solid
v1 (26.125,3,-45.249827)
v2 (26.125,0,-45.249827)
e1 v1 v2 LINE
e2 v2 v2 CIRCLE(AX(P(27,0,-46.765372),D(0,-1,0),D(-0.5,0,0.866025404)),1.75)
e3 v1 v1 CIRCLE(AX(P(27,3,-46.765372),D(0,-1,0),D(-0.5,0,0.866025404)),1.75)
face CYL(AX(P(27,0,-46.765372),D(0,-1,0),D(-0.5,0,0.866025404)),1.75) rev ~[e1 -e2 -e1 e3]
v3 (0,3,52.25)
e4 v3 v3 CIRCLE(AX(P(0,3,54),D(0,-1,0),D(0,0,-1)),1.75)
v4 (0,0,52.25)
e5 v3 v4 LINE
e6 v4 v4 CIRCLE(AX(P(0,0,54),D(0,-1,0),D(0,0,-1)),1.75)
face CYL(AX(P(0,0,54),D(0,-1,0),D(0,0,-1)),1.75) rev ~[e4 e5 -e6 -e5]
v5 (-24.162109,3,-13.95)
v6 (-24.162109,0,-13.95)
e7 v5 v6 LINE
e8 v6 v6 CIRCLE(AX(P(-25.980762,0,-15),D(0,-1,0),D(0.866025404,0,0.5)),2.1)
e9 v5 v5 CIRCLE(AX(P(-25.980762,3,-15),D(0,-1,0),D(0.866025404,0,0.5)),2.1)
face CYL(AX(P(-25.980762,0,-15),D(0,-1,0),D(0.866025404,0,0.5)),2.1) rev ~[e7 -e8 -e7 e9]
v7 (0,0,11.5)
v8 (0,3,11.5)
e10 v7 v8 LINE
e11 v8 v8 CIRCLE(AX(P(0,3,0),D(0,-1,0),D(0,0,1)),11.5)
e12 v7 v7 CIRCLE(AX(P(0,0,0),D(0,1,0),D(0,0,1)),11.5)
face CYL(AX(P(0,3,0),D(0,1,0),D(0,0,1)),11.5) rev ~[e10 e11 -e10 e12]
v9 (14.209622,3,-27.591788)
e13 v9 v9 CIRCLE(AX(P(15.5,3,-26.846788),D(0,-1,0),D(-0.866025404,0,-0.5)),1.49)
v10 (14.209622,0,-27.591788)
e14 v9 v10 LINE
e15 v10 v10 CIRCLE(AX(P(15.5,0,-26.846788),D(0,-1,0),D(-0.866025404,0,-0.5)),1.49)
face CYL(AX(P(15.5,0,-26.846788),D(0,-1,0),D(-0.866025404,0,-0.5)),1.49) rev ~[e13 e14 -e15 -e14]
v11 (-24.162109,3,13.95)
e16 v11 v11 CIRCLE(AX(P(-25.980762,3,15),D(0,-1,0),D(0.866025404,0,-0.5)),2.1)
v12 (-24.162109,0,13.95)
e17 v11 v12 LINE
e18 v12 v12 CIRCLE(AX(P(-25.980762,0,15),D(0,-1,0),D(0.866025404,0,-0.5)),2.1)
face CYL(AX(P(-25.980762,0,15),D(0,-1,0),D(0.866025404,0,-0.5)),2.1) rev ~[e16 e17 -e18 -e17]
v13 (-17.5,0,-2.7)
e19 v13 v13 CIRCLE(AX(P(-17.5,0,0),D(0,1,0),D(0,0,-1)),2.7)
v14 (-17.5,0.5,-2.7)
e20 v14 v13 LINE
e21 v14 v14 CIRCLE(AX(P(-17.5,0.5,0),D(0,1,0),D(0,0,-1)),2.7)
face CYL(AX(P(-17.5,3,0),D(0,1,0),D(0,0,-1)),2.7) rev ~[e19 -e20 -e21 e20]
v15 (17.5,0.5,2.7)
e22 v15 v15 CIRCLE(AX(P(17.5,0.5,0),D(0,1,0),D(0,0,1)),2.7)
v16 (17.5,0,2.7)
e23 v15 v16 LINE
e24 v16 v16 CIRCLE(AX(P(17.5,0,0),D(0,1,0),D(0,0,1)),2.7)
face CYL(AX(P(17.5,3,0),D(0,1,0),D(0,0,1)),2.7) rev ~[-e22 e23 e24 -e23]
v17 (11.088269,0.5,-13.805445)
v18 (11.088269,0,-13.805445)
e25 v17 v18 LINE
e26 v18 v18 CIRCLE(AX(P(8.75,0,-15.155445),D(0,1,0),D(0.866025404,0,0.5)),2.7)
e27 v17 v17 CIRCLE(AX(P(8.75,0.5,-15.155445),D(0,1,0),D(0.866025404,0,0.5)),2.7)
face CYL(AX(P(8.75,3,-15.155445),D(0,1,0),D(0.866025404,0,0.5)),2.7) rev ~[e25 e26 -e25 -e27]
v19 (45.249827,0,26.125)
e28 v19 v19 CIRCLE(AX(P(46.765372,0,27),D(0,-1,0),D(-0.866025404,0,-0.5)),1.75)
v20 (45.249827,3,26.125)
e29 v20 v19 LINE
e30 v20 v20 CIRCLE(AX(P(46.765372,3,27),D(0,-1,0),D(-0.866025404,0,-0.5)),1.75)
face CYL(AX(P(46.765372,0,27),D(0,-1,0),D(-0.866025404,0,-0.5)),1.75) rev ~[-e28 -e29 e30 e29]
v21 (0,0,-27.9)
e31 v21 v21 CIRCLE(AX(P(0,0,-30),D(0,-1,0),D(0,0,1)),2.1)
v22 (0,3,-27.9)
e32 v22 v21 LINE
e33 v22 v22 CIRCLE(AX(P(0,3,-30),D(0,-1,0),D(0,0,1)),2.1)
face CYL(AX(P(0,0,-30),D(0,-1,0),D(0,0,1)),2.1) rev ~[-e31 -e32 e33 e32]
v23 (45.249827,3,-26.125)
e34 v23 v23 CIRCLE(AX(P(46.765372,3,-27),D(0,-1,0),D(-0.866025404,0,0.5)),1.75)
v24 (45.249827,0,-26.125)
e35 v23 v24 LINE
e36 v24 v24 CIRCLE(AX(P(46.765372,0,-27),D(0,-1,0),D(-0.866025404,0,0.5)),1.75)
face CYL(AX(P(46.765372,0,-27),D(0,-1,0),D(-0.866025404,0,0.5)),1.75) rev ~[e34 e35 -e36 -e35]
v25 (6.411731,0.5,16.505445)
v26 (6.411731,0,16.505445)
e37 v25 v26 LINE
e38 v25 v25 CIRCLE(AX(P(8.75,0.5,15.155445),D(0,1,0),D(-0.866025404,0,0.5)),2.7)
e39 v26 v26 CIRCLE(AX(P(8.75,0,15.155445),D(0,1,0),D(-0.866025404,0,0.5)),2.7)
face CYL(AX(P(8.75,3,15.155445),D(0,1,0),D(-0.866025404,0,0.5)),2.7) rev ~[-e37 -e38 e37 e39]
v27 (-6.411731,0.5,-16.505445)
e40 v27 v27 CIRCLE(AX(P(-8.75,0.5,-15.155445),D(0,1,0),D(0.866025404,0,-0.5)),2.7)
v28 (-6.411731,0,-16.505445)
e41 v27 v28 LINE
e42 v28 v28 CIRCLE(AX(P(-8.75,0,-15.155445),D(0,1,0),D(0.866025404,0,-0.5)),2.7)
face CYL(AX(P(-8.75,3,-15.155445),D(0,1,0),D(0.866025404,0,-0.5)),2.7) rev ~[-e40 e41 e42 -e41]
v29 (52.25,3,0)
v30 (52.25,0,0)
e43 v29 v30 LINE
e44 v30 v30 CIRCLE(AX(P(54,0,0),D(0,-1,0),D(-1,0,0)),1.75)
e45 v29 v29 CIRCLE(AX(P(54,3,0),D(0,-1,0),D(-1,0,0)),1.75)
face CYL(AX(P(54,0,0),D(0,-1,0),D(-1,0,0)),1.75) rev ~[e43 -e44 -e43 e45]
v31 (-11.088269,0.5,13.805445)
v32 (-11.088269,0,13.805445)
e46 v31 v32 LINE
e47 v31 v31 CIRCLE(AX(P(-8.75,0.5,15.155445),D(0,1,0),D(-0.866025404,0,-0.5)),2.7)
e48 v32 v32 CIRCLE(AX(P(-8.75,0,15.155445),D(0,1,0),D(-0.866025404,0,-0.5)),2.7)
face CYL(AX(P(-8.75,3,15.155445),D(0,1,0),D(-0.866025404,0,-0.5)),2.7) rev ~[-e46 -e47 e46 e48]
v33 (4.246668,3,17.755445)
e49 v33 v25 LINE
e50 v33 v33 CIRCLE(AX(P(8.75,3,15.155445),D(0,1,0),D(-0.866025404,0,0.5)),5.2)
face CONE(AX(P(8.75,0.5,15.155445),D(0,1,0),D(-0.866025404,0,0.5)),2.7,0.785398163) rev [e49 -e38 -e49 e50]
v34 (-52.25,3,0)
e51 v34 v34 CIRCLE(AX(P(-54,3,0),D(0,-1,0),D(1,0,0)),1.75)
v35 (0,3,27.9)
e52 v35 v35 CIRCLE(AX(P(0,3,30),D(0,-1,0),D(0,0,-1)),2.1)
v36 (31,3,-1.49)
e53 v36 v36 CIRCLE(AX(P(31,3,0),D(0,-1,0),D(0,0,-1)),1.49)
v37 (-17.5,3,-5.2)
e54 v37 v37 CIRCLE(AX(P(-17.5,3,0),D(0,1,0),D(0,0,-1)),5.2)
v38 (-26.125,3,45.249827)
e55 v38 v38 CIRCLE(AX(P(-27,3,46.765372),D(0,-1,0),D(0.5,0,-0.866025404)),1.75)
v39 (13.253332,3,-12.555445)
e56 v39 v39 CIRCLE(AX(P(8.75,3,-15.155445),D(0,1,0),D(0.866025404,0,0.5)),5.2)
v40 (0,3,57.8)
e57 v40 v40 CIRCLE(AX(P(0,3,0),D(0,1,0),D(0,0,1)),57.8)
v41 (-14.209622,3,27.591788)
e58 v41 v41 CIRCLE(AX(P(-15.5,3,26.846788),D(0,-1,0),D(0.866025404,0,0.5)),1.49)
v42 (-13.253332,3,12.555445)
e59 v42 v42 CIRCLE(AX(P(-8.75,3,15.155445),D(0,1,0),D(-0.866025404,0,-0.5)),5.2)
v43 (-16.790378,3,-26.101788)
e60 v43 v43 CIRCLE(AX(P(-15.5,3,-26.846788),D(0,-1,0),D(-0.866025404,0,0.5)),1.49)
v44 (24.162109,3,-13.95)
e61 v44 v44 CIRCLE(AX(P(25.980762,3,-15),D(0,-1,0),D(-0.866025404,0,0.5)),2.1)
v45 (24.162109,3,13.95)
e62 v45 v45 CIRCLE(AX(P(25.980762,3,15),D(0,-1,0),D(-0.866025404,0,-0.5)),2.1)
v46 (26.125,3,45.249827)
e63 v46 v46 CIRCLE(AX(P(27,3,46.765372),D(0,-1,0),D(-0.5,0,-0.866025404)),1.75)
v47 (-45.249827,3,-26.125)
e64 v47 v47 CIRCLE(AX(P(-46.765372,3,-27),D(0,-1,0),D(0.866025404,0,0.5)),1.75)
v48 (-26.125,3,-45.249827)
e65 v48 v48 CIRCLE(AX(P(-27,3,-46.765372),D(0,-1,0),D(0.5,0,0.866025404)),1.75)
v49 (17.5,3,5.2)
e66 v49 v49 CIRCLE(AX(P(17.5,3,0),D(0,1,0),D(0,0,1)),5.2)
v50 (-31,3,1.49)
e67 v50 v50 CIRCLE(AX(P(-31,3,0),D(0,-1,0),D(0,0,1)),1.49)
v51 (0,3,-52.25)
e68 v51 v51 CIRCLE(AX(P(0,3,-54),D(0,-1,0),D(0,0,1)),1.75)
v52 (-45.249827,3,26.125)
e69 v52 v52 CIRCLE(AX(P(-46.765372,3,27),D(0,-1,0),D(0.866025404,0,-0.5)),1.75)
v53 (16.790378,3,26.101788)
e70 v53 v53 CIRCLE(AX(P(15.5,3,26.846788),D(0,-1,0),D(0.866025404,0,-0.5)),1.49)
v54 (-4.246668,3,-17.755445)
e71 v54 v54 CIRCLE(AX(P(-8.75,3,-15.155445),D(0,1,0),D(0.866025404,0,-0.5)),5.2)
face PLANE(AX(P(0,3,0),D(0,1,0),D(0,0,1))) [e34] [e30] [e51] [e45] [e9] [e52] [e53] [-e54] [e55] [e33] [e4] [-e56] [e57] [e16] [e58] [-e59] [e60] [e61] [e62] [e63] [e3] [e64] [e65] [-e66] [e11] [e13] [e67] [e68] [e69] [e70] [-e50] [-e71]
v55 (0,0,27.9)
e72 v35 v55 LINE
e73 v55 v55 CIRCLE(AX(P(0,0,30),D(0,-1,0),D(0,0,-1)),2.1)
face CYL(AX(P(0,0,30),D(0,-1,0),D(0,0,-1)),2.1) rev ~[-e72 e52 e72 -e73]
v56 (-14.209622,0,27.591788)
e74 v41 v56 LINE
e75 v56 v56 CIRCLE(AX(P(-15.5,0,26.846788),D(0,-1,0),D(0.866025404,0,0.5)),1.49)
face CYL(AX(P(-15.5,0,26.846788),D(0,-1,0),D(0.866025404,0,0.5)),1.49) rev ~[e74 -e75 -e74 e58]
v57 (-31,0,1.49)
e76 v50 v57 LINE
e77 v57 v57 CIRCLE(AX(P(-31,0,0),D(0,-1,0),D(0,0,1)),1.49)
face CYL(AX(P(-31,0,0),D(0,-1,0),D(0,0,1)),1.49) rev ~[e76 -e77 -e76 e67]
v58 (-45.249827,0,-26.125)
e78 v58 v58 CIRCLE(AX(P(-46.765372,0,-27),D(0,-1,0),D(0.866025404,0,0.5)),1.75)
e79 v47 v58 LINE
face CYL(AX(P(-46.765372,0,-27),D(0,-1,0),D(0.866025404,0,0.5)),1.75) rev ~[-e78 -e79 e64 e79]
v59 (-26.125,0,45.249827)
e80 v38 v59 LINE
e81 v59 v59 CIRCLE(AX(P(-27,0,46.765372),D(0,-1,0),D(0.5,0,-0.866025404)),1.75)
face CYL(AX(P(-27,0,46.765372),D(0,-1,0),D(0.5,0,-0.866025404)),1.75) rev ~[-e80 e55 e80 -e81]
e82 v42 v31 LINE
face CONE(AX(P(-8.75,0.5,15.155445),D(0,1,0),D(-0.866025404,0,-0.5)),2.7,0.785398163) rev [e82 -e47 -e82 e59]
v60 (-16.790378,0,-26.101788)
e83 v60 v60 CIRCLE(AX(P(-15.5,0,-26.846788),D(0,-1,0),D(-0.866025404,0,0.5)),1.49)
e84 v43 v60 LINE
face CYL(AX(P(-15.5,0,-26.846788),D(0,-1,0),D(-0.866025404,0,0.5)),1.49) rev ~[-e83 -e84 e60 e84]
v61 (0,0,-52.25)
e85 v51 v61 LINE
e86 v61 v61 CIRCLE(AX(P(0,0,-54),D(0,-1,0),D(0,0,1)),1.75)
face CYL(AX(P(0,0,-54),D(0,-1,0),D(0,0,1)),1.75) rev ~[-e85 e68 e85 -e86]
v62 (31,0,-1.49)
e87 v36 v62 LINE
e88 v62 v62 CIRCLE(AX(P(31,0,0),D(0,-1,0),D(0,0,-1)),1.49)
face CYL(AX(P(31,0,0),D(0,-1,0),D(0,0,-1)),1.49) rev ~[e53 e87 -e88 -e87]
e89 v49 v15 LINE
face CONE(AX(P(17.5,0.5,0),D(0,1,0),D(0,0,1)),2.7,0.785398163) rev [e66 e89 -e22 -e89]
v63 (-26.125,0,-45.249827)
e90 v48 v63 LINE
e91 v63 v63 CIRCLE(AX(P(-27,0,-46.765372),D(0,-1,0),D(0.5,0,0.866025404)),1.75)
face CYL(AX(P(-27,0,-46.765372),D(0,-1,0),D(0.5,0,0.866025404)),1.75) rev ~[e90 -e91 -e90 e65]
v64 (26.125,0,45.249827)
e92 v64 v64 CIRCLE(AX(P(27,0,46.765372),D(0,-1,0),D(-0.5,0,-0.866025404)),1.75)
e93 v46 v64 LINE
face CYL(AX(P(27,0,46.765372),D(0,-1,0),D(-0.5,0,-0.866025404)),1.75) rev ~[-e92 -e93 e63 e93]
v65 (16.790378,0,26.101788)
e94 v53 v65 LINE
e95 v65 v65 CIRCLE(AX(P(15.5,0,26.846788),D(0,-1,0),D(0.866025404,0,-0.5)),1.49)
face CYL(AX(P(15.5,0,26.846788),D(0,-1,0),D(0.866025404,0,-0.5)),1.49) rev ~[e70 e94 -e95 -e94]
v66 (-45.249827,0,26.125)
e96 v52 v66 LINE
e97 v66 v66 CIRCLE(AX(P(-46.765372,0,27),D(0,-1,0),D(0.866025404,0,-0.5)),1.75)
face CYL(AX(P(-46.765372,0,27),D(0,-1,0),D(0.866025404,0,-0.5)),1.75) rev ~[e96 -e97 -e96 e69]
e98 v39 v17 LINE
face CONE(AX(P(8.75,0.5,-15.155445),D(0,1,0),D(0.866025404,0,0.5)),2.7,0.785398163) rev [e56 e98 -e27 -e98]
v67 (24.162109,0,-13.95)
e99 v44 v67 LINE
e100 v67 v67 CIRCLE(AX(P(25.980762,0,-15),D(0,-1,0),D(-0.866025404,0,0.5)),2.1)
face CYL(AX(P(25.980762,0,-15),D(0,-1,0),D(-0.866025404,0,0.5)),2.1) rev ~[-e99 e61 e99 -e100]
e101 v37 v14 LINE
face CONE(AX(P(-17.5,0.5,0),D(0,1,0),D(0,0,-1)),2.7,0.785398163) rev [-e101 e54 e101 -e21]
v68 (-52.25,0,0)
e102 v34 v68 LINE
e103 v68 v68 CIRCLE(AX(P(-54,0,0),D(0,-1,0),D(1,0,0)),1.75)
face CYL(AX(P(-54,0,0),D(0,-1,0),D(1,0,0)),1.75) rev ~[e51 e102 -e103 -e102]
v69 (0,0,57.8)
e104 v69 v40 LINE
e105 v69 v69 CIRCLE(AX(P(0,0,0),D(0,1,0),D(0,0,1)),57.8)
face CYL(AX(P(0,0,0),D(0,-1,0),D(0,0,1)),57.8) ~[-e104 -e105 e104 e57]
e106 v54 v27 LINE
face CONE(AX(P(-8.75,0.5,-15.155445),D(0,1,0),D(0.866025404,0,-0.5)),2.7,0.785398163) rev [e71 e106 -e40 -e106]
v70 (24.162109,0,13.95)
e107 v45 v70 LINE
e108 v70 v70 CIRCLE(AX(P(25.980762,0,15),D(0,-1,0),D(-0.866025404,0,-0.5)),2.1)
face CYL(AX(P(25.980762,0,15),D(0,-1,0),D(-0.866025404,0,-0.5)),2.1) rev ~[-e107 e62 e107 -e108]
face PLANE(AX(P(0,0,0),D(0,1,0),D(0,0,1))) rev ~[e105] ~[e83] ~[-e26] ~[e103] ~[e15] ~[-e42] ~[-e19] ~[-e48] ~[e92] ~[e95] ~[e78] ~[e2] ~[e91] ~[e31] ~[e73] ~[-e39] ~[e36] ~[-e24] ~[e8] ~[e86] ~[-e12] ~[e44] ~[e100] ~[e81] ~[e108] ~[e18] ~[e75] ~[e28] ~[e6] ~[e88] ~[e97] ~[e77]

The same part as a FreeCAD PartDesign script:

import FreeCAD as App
import Part
import Sketcher

V = App.Vector


def edges_at(feature, points):
    """Names of the edges that pass closest to the given points."""
    edges = feature.Shape.Edges
    near = lambda p: min(range(len(edges)), key=lambda i: edges[i].distToShape(Part.Vertex(*p))[0])
    return sorted({f"Edge{near(p) + 1}" for p in points})

doc = App.newDocument("Part")
body = doc.addObject("PartDesign::Body", "Body")

sketch1 = body.newObject("Sketcher::SketchObject", "Sketch")
sketch1.AttachmentSupport = (doc.getObject("XZ_Plane"), [""])
sketch1.MapMode = "FlatFace"
sketch1.addGeometry(Part.Circle(V(0, 0, 0), V(0, 0, 1), 58), False)
sketch1.addConstraint([
    Sketcher.Constraint("Coincident", 0, 3, -1, 1),
    Sketcher.Constraint("Diameter", 0, 115.6),
])
pad1 = body.newObject("PartDesign::Pad", "Pad")
pad1.Profile = sketch1
pad1.Length = 3
pad1.Reversed = True

sketch2 = body.newObject("Sketcher::SketchObject", "Sketch001")
sketch2.AttachmentSupport = (doc.getObject("XZ_Plane"), [""])
sketch2.MapMode = "FlatFace"
sketch2.addGeometry(Part.Circle(V(0, 54, 0), V(0, 0, 1), 1.8), False)
sketch2.addConstraint([
    Sketcher.Constraint("PointOnObject", 0, 3, -2),
    Sketcher.Constraint("Diameter", 0, 3.5),
    Sketcher.Constraint("DistanceY", -1, 1, 0, 3, 54.0),
])
pocket1 = body.newObject("PartDesign::Pocket", "Pocket")
pocket1.Profile = sketch2
pocket1.Length = 165.593154
pocket1.Midplane = True
doc.recompute()

polarpattern = body.newObject("PartDesign::PolarPattern", "PolarPattern")
polarpattern.Originals = [pocket1]
polarpattern.Axis = (doc.getObject("Y_Axis"), [""])
polarpattern.Angle = 360
polarpattern.Occurrences = 12
body.Tip = polarpattern

sketch3 = body.newObject("Sketcher::SketchObject", "Sketch002")
sketch3.AttachmentSupport = (doc.getObject("XZ_Plane"), [""])
sketch3.MapMode = "FlatFace"
sketch3.addGeometry(Part.Circle(V(0, 30, 0), V(0, 0, 1), 2.1), False)
sketch3.addConstraint([
    Sketcher.Constraint("PointOnObject", 0, 3, -2),
    Sketcher.Constraint("Diameter", 0, 4.2),
    Sketcher.Constraint("DistanceY", -1, 1, 0, 3, 30.0),
])
pocket2 = body.newObject("PartDesign::Pocket", "Pocket001")
pocket2.Profile = sketch3
pocket2.Length = 165.593154
pocket2.Midplane = True
doc.recompute()

polarpattern2 = body.newObject("PartDesign::PolarPattern", "PolarPattern001")
polarpattern2.Originals = [pocket2]
polarpattern2.Axis = (doc.getObject("Y_Axis"), [""])
polarpattern2.Angle = 360
polarpattern2.Occurrences = 6
body.Tip = polarpattern2

sketch4 = body.newObject("Sketcher::SketchObject", "Sketch003")
sketch4.AttachmentSupport = (doc.getObject("XZ_Plane"), [""])
sketch4.MapMode = "FlatFace"
sketch4.addGeometry(Part.Circle(V(31, 0, 0), V(0, 0, 1), 1.5), False)
sketch4.addConstraint([
    Sketcher.Constraint("PointOnObject", 0, 3, -1),
    Sketcher.Constraint("Diameter", 0, 2.98),
    Sketcher.Constraint("DistanceX", -1, 1, 0, 3, 31.0),
])
pocket3 = body.newObject("PartDesign::Pocket", "Pocket002")
pocket3.Profile = sketch4
pocket3.Length = 165.593154
pocket3.Midplane = True
doc.recompute()

polarpattern3 = body.newObject("PartDesign::PolarPattern", "PolarPattern002")
polarpattern3.Originals = [pocket3]
polarpattern3.Axis = (doc.getObject("Y_Axis"), [""])
polarpattern3.Angle = 360
polarpattern3.Occurrences = 6
body.Tip = polarpattern3

sketch5 = body.newObject("Sketcher::SketchObject", "Sketch004")
sketch5.AttachmentSupport = (doc.getObject("XZ_Plane"), [""])
sketch5.MapMode = "FlatFace"
sketch5.AttachmentOffset = App.Placement(V(0, 0, -3), App.Rotation())
sketch5.addGeometry([
    Part.Circle(V(17.5, 0, 0), V(0, 0, 1), 2.7),
    Part.Circle(V(0, 0, 0), V(0, 0, 1), 11.5),
], False)
sketch5.addConstraint([
    Sketcher.Constraint("Coincident", 1, 3, -1, 1),
    Sketcher.Constraint("PointOnObject", 0, 3, -1),
    Sketcher.Constraint("Diameter", 1, 23.0),
    Sketcher.Constraint("Diameter", 0, 5.4),
    Sketcher.Constraint("DistanceX", -1, 1, 0, 3, 17.5),
])
pocket4 = body.newObject("PartDesign::Pocket", "Pocket003")
pocket4.Profile = sketch5
pocket4.Length = 165.593154
pocket4.Midplane = True
doc.recompute()

polarpattern4 = body.newObject("PartDesign::PolarPattern", "PolarPattern003")
polarpattern4.Originals = [pocket4]
polarpattern4.Axis = (doc.getObject("Y_Axis"), [""])
polarpattern4.Angle = 360
polarpattern4.Occurrences = 6
body.Tip = polarpattern4
doc.recompute()

chamfer = body.newObject("PartDesign::Chamfer", "Chamfer")
chamfer.Base = (polarpattern4, edges_at(polarpattern4, [
    (17.5, 3, -2.7),
    (-11.088, 3, -13.805),
    (6.412, 3, -16.505),
    (-6.412, 3, 16.505),
    (-17.5, 3, 2.7),
    (11.088, 3, 13.805),
]))
chamfer.Size = 2.5

doc.recompute()
